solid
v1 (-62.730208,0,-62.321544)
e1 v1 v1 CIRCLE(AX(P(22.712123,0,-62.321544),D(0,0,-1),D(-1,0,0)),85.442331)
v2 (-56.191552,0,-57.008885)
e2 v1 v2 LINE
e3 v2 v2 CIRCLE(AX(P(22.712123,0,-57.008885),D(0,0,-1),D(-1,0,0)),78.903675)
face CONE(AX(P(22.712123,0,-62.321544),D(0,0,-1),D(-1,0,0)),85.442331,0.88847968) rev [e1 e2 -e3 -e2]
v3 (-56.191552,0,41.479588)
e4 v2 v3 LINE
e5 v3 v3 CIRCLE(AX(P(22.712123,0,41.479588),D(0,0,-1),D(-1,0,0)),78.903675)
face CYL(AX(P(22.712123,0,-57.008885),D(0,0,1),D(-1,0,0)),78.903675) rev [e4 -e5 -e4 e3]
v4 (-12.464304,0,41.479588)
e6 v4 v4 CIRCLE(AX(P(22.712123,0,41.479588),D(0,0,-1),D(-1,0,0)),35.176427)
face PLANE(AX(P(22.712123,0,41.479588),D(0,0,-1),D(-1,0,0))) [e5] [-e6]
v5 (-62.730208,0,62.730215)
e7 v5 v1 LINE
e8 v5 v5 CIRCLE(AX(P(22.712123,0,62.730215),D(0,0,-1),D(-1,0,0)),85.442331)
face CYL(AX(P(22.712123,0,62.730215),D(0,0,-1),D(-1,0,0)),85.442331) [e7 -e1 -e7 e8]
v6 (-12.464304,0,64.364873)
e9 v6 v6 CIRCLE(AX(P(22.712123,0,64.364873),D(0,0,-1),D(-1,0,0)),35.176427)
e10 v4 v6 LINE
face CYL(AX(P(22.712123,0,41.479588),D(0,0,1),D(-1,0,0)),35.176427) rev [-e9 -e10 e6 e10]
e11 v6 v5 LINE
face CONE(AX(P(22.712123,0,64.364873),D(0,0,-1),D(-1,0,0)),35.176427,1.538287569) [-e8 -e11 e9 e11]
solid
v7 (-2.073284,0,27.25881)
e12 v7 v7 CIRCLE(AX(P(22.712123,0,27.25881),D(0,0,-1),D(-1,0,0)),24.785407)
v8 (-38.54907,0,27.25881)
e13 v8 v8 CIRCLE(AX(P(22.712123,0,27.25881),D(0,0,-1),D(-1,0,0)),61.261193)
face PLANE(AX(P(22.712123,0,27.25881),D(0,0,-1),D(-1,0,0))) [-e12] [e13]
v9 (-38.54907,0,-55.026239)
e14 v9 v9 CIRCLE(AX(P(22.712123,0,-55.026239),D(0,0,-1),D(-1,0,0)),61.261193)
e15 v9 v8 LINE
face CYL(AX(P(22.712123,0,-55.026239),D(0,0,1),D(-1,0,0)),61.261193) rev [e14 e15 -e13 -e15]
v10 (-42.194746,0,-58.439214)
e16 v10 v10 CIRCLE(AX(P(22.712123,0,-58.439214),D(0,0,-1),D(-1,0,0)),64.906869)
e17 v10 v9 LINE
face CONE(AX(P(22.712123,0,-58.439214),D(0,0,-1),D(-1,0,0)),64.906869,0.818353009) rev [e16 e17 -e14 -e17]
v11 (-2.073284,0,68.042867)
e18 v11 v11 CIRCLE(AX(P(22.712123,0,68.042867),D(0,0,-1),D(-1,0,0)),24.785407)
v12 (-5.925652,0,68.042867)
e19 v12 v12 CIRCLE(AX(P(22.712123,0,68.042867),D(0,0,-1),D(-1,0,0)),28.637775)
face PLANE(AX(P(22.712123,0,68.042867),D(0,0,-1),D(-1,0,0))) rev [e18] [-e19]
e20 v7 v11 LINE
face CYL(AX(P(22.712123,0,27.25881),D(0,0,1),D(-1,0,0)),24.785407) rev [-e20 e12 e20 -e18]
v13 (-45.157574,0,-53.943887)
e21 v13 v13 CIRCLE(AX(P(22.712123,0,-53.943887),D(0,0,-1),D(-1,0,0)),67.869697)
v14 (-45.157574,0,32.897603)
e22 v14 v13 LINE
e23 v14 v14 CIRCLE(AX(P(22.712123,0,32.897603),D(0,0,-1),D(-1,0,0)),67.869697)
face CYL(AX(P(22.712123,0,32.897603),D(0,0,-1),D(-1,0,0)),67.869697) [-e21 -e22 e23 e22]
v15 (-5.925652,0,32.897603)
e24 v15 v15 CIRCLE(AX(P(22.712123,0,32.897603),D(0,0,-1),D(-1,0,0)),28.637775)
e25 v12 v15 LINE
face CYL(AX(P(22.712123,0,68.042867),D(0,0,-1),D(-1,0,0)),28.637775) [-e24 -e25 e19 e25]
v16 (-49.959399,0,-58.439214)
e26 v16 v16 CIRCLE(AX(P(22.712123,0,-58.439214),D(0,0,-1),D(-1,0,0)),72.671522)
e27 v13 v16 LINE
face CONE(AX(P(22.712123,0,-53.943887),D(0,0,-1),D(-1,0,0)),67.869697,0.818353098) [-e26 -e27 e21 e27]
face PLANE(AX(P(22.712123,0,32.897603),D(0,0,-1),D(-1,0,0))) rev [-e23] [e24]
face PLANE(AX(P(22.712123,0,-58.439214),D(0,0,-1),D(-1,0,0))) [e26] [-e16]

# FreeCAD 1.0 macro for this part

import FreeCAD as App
import Part
import Sketcher
from FreeCAD import Vector

doc = App.newDocument("Part")
body = doc.addObject("PartDesign::Body", "Body")
body.AllowCompound = True

# Sketch on XZ plane
sketch1 = doc.addObject("Sketcher::SketchObject", "Sketch")
body.addObject(sketch1)
sketch1.AttachmentSupport = (doc.XZ_Plane, [""])
sketch1.MapMode = "FlatFace"
sketch1.addGeometry(Part.LineSegment(Vector(-12.5, 41.5, 0), Vector(-12.5, 64.4, 0)), False)
sketch1.addGeometry(Part.LineSegment(Vector(-12.5, 64.4, 0), Vector(-62.7, 62.7, 0)), False)
sketch1.addGeometry(Part.LineSegment(Vector(-62.7, 62.7, 0), Vector(-62.7, -62.3, 0)), False)
sketch1.addGeometry(Part.LineSegment(Vector(-62.7, -62.3, 0), Vector(-56.2, -57, 0)), False)
sketch1.addGeometry(Part.LineSegment(Vector(-56.2, -57, 0), Vector(-56.2, 41.5, 0)), False)
sketch1.addGeometry(Part.LineSegment(Vector(-56.2, 41.5, 0), Vector(-12.5, 41.5, 0)), False)
sketch1.addGeometry(Part.LineSegment(Vector(-2.1, 68, 0), Vector(-5.9, 68, 0)), False)
sketch1.addGeometry(Part.LineSegment(Vector(-5.9, 68, 0), Vector(-5.9, 32.9, 0)), False)
sketch1.addGeometry(Part.LineSegment(Vector(-5.9, 32.9, 0), Vector(-45.2, 32.9, 0)), False)
sketch1.addGeometry(Part.LineSegment(Vector(-45.2, 32.9, 0), Vector(-45.2, -53.9, 0)), False)
sketch1.addGeometry(Part.LineSegment(Vector(-45.2, -53.9, 0), Vector(-50, -58.4, 0)), False)
sketch1.addGeometry(Part.LineSegment(Vector(-50, -58.4, 0), Vector(-42.2, -58.4, 0)), False)
sketch1.addGeometry(Part.LineSegment(Vector(-42.2, -58.4, 0), Vector(-38.5, -55, 0)), False)
sketch1.addGeometry(Part.LineSegment(Vector(-38.5, -55, 0), Vector(-38.5, 27.3, 0)), False)
sketch1.addGeometry(Part.LineSegment(Vector(-38.5, 27.3, 0), Vector(-2.1, 27.3, 0)), False)
sketch1.addGeometry(Part.LineSegment(Vector(-2.1, 27.3, 0), Vector(-2.1, 68, 0)), False)
sketch1.addGeometry(Part.LineSegment(Vector(22.7, 68, 0), Vector(22.7, -62.3, 0)), True)  # axis
sketch1.addConstraint(Sketcher.Constraint("Coincident", 0, 2, 1, 1))
sketch1.addConstraint(Sketcher.Constraint("Coincident", 1, 2, 2, 1))
sketch1.addConstraint(Sketcher.Constraint("Coincident", 2, 2, 3, 1))
sketch1.addConstraint(Sketcher.Constraint("Coincident", 3, 2, 4, 1))
sketch1.addConstraint(Sketcher.Constraint("Coincident", 4, 2, 5, 1))
sketch1.addConstraint(Sketcher.Constraint("Coincident", 5, 2, 0, 1))
sketch1.addConstraint(Sketcher.Constraint("Coincident", 6, 2, 7, 1))
sketch1.addConstraint(Sketcher.Constraint("Coincident", 7, 2, 8, 1))
sketch1.addConstraint(Sketcher.Constraint("Coincident", 8, 2, 9, 1))
sketch1.addConstraint(Sketcher.Constraint("Coincident", 9, 2, 10, 1))
sketch1.addConstraint(Sketcher.Constraint("Coincident", 10, 2, 11, 1))
sketch1.addConstraint(Sketcher.Constraint("Coincident", 11, 2, 12, 1))
sketch1.addConstraint(Sketcher.Constraint("Coincident", 12, 2, 13, 1))
sketch1.addConstraint(Sketcher.Constraint("Coincident", 13, 2, 14, 1))
sketch1.addConstraint(Sketcher.Constraint("Coincident", 14, 2, 15, 1))
sketch1.addConstraint(Sketcher.Constraint("Coincident", 15, 2, 6, 1))
sketch1.addConstraint(Sketcher.Constraint("Vertical", 0))
sketch1.addConstraint(Sketcher.Constraint("Vertical", 2))
sketch1.addConstraint(Sketcher.Constraint("Vertical", 4))
sketch1.addConstraint(Sketcher.Constraint("Horizontal", 5))
sketch1.addConstraint(Sketcher.Constraint("Horizontal", 6))
sketch1.addConstraint(Sketcher.Constraint("Vertical", 7))
sketch1.addConstraint(Sketcher.Constraint("Horizontal", 8))
sketch1.addConstraint(Sketcher.Constraint("Vertical", 9))
sketch1.addConstraint(Sketcher.Constraint("Horizontal", 11))
sketch1.addConstraint(Sketcher.Constraint("Vertical", 13))
sketch1.addConstraint(Sketcher.Constraint("Horizontal", 14))
sketch1.addConstraint(Sketcher.Constraint("Vertical", 15))
sketch1.addConstraint(Sketcher.Constraint("Vertical", 16))
sketch1.addConstraint(Sketcher.Constraint("Parallel", 10, 12))
sketch1.addConstraint(Sketcher.Constraint("Horizontal", 15, 2, 16, 1))
sketch1.addConstraint(Sketcher.Constraint("Horizontal", 2, 2, 16, 2))
sketch1.addConstraint(Sketcher.Constraint("DistanceY", 3, 2, 9, 2, 3.064998))
sketch1.addConstraint(Sketcher.Constraint("DistanceX", 5, 1, 5, 2, 43.727248))
sketch1.addConstraint(Sketcher.Constraint("DistanceX", 6, 2, 6, 1, 3.852368))
sketch1.addConstraint(Sketcher.Constraint("DistanceX", 8, 2, 8, 1, 39.231922))
sketch1.addConstraint(Sketcher.Constraint("DistanceY", 2, 2, 2, 1, 125.051759))
sketch1.addConstraint(Sketcher.Constraint("DistanceY", 9, 2, 9, 1, 86.84149))
sketch1.addConstraint(Sketcher.Constraint("DistanceY", 13, 1, 13, 2, 82.285049))
sketch1.addConstraint(Sketcher.Constraint("DistanceY", 16, 2, 16, 1, 130.364411))
sketch1.addConstraint(Sketcher.Constraint("DistanceX", 10, 2, -1, 1, 49.959399))
sketch1.addConstraint(Sketcher.Constraint("DistanceY", 3, 2, 1, 2, 119.7391))
sketch1.addConstraint(Sketcher.Constraint("DistanceX", 4, 2, 6, 2, 50.2659))
sketch1.addConstraint(Sketcher.Constraint("DistanceY", 10, 2, 4, 2, 99.918802))
sketch1.addConstraint(Sketcher.Constraint("Distance", 10, 6.577651))
sketch1.addConstraint(Sketcher.Constraint("Distance", 12, 4.993932))
sketch1.addConstraint(Sketcher.Constraint("DistanceX", 11, 1, 11, 2, 7.764653))
sketch1.addConstraint(Sketcher.Constraint("DistanceX", 14, 1, 14, 2, 36.475786))
sketch1.addConstraint(Sketcher.Constraint("DistanceY", 0, 1, 0, 2, 22.885285))
sketch1.addConstraint(Sketcher.Constraint("DistanceY", 12, 2, -1, 1, 55.026239))
sketch1.addConstraint(Sketcher.Constraint("DistanceX", 2, 2, 10, 2, 12.770809))
sketch1.addConstraint(Sketcher.Constraint("DistanceX", 11, 2, 16, 2, 64.906869))
revolution = doc.addObject("PartDesign::Revolution", "Revolution")
body.addObject(revolution)
revolution.Profile = sketch1
revolution.ReferenceAxis = (sketch1, ["Axis0"])
revolution.Angle = 360

doc.recompute()
